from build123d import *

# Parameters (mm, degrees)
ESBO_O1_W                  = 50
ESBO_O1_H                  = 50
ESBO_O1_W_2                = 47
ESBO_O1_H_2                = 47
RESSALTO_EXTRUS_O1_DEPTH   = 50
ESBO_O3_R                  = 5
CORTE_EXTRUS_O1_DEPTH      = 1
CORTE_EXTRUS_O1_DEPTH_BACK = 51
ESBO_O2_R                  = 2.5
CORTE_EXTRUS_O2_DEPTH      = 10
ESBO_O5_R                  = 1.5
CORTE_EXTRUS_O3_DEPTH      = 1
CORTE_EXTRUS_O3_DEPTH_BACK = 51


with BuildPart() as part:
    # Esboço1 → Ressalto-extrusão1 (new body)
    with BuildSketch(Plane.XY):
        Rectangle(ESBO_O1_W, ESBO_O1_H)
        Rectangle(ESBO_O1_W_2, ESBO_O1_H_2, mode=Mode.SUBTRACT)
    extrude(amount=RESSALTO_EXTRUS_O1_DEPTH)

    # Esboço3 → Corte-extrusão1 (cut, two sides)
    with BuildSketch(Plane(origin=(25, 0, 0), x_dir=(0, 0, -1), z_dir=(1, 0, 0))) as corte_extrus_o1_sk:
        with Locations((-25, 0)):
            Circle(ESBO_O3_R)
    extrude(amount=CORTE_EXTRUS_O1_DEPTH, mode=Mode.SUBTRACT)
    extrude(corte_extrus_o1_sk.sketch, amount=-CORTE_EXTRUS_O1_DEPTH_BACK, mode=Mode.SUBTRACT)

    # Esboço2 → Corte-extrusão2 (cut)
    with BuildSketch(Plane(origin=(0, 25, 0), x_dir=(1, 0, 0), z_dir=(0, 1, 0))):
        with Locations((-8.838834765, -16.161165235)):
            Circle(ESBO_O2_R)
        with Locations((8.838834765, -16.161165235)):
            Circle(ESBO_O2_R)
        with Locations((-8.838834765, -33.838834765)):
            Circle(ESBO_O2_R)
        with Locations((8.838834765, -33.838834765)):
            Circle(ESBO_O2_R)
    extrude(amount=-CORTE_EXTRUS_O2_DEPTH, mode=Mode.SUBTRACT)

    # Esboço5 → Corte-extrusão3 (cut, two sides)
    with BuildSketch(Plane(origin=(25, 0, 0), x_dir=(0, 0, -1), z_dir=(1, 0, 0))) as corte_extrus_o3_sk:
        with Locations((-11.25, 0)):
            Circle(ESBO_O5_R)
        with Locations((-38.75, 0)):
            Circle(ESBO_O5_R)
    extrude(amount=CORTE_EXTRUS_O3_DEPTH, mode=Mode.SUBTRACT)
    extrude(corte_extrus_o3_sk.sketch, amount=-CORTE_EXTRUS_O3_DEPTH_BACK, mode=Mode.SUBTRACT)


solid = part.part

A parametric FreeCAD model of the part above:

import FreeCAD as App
import Part
import Sketcher
Q = App.Units.Quantity

doc = App.newDocument("Part")
body = doc.addObject("PartDesign::Body", "Body")

sketch1 = body.newObject("Sketcher::SketchObject", "Sketch")
sketch1.AttachmentSupport = (doc.getObject("XY_Plane"), [""])
sketch1.MapMode = "FlatFace"
sketch1.addGeometry(Part.LineSegment(App.Vector(-25, 25, 0), App.Vector(-25, -25, 0)), False)
sketch1.addGeometry(Part.LineSegment(App.Vector(-25, -25, 0), App.Vector(25, -25, 0)), False)
sketch1.addGeometry(Part.LineSegment(App.Vector(25, -25, 0), App.Vector(25, 25, 0)), False)
sketch1.addGeometry(Part.LineSegment(App.Vector(25, 25, 0), App.Vector(-25, 25, 0)), False)
sketch1.addGeometry(Part.LineSegment(App.Vector(24, -24, 0), App.Vector(-24, -24, 0)), False)
sketch1.addGeometry(Part.LineSegment(App.Vector(-24, -24, 0), App.Vector(-24, 24, 0)), False)
sketch1.addGeometry(Part.LineSegment(App.Vector(-24, 24, 0), App.Vector(24, 24, 0)), False)
sketch1.addGeometry(Part.LineSegment(App.Vector(24, 24, 0), App.Vector(24, -24, 0)), False)
sketch1.addConstraint(Sketcher.Constraint("Coincident", 0, 2, 1, 1))
sketch1.addConstraint(Sketcher.Constraint("Coincident", 1, 2, 2, 1))
sketch1.addConstraint(Sketcher.Constraint("Coincident", 2, 2, 3, 1))
sketch1.addConstraint(Sketcher.Constraint("Coincident", 3, 2, 0, 1))
sketch1.addConstraint(Sketcher.Constraint("Coincident", 4, 2, 5, 1))
sketch1.addConstraint(Sketcher.Constraint("Coincident", 5, 2, 6, 1))
sketch1.addConstraint(Sketcher.Constraint("Coincident", 6, 2, 7, 1))
sketch1.addConstraint(Sketcher.Constraint("Coincident", 7, 2, 4, 1))
sketch1.addConstraint(Sketcher.Constraint("Vertical", 0))
sketch1.addConstraint(Sketcher.Constraint("Horizontal", 1))
sketch1.addConstraint(Sketcher.Constraint("Vertical", 2))
sketch1.addConstraint(Sketcher.Constraint("Horizontal", 3))
sketch1.addConstraint(Sketcher.Constraint("Horizontal", 4))
sketch1.addConstraint(Sketcher.Constraint("Vertical", 5))
sketch1.addConstraint(Sketcher.Constraint("Horizontal", 6))
sketch1.addConstraint(Sketcher.Constraint("Vertical", 7))
sketch1.addConstraint(Sketcher.Constraint("Symmetric", 0, 2, 2, 2, -1, 1))
sketch1.addConstraint(Sketcher.Constraint("Symmetric", 4, 2, 6, 2, -1, 1))
sketch1.addConstraint(Sketcher.Constraint("Equal", 3, 0))
sketch1.addConstraint(Sketcher.Constraint("Equal", 6, 5))
sketch1.addConstraint(Sketcher.Constraint("DistanceX", 1, 1, 1, 2, Q("50 mm")))
sketch1.addConstraint(Sketcher.Constraint("DistanceX", 4, 2, 4, 1, Q("47 mm")))
pad1 = body.newObject("PartDesign::Pad", "Pad")
pad1.Profile = sketch1
pad1.Length = 50

sketch2 = body.newObject("Sketcher::SketchObject", "Sketch001")
sketch2.AttachmentSupport = (doc.getObject("YZ_Plane"), [""])
sketch2.MapMode = "FlatFace"
sketch2.AttachmentOffset = App.Placement(App.Vector(0, 0, 25), App.Rotation())
sketch2.addGeometry(Part.Circle(App.Vector(0, 25, 0), App.Vector(0, 0, 1), 5), False)
sketch2.addConstraint(Sketcher.Constraint("PointOnObject", 0, 3, -2))
sketch2.addConstraint(Sketcher.Constraint("Diameter", 0, Q("10 mm")))
sketch2.addConstraint(Sketcher.Constraint("DistanceY", -1, 1, 0, 3, Q("25 mm")))
pocket1 = body.newObject("PartDesign::Pocket", "Pocket")
pocket1.Profile = sketch2
pocket1.Type = "ThroughAll"
pocket1.Midplane = True

sketch3 = body.newObject("Sketcher::SketchObject", "Sketch002")
sketch3.AttachmentSupport = (doc.getObject("XZ_Plane"), [""])
sketch3.MapMode = "FlatFace"
sketch3.AttachmentOffset = App.Placement(App.Vector(0, 0, -25), App.Rotation())
sketch3.addGeometry(Part.Circle(App.Vector(-8.8, 16.2, 0), App.Vector(0, 0, 1), 2.5), False)
sketch3.addGeometry(Part.Circle(App.Vector(8.8, 16.2, 0), App.Vector(0, 0, 1), 2.5), False)
sketch3.addGeometry(Part.Circle(App.Vector(-8.8, 33.8, 0), App.Vector(0, 0, 1), 2.5), False)
sketch3.addGeometry(Part.Circle(App.Vector(8.8, 33.8, 0), App.Vector(0, 0, 1), 2.5), False)
sketch3.addConstraint(Sketcher.Constraint("Equal", 0, 1))
sketch3.addConstraint(Sketcher.Constraint("Equal", 1, 2))
sketch3.addConstraint(Sketcher.Constraint("Equal", 2, 3))
sketch3.addConstraint(Sketcher.Constraint("Symmetric", 0, 3, 1, 3, -2))
sketch3.addConstraint(Sketcher.Constraint("Symmetric", 2, 3, 3, 3, -2))
sketch3.addConstraint(Sketcher.Constraint("Vertical", 0, 3, 2, 3))
sketch3.addConstraint(Sketcher.Constraint("Diameter", 0, Q("5 mm")))
sketch3.addConstraint(Sketcher.Constraint("DistanceX", 0, 3, 1, 3, Q("17.67767 mm")))
sketch3.addConstraint(Sketcher.Constraint("DistanceY", 0, 3, 2, 3, Q("17.67767 mm")))
sketch3.addConstraint(Sketcher.Constraint("DistanceY", -1, 1, 0, 3, Q("16.161165 mm")))
pocket2 = body.newObject("PartDesign::Pocket", "Pocket001")
pocket2.Profile = sketch3
pocket2.Length = 10
pocket2.Reversed = True

sketch4 = body.newObject("Sketcher::SketchObject", "Sketch003")
sketch4.AttachmentSupport = (doc.getObject("YZ_Plane"), [""])
sketch4.MapMode = "FlatFace"
sketch4.AttachmentOffset = App.Placement(App.Vector(0, 0, 25), App.Rotation())
sketch4.addGeometry(Part.Circle(App.Vector(0, 11.2, 0), App.Vector(0, 0, 1), 1.5), False)
sketch4.addGeometry(Part.Circle(App.Vector(0, 38.8, 0), App.Vector(0, 0, 1), 1.5), False)
sketch4.addConstraint(Sketcher.Constraint("Equal", 0, 1))
sketch4.addConstraint(Sketcher.Constraint("PointOnObject", 0, 3, -2))
sketch4.addConstraint(Sketcher.Constraint("PointOnObject", 1, 3, -2))
sketch4.addConstraint(Sketcher.Constraint("Diameter", 0, Q("3 mm")))
sketch4.addConstraint(Sketcher.Constraint("DistanceY", 0, 3, 1, 3, Q("27.5 mm")))
sketch4.addConstraint(Sketcher.Constraint("DistanceY", -1, 1, 0, 3, Q("11.25 mm")))
pocket3 = body.newObject("PartDesign::Pocket", "Pocket002")
pocket3.Profile = sketch4
pocket3.Type = "ThroughAll"
pocket3.Midplane = True

doc.recompute()
